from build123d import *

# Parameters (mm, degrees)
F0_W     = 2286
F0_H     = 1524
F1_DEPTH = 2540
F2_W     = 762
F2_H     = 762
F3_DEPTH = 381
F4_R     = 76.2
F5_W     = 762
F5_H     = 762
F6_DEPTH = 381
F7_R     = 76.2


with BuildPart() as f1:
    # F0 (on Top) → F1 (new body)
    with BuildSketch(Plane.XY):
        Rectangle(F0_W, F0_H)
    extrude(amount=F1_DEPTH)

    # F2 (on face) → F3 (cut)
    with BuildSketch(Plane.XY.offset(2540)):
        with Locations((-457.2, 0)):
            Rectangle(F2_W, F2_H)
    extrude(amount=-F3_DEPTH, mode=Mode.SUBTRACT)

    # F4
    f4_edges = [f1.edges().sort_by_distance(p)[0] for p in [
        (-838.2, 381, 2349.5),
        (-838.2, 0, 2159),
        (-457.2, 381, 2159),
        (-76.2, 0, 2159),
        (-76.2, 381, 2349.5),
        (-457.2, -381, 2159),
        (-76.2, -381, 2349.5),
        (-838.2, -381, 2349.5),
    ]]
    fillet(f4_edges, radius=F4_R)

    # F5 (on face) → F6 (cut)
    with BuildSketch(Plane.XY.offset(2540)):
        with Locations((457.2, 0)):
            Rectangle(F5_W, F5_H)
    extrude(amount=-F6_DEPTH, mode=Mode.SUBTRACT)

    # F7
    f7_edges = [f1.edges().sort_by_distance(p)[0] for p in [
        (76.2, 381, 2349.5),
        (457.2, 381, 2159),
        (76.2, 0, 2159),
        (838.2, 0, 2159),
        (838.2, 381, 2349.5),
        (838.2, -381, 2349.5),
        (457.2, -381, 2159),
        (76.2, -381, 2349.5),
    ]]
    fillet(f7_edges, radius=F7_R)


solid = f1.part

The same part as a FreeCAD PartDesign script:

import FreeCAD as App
import Part
import Sketcher
from FreeCAD import Vector
Q = App.Units.Quantity


def edges_at(feature, points):
    """Names of the edges that pass closest to the given points."""
    edges = feature.Shape.Edges
    near = lambda p: min(range(len(edges)), key=lambda i: edges[i].distToShape(Part.Vertex(*p))[0])
    return sorted({f"Edge{near(p) + 1}" for p in points})


def add_polygon(sketch, points):
    """Adds a closed chain of lines whose ends are joined by coincident constraints."""
    first, n = sketch.GeometryCount, len(points)
    for a, b in zip(points, points[1:] + points[:1]):
        sketch.addGeometry(Part.LineSegment(App.Vector(*a, 0), App.Vector(*b, 0)), False)
    for i in range(n):
        sketch.addConstraint(Sketcher.Constraint("Coincident", first + i, 2, first + (i + 1) % n, 1))

doc = App.newDocument("Part")
params = doc.addObject("Spreadsheet::Sheet", "Params")
for row, (alias, value) in enumerate([
    ("sketch1_width", "90 in"),
    ("sketch1_height", "60 in"),
    ("pad1_length", "100 in"),
    ("sketch2_width", "30 in"),
    ("pocket1_length", "15 in"),
    ("fillet_radius", "3 in"),
    ("sketch3_width", "30 in"),
    ("pocket2_length", "15 in"),
    ("fillet2_radius", "3 in"),
], start=1):
    params.set(f"A{row}", alias)
    params.set(f"B{row}", "=" + value)
    params.setAlias(f"B{row}", alias)

body = doc.addObject("PartDesign::Body", "Body")

sketch1 = body.newObject("Sketcher::SketchObject", "Sketch")
sketch1.AttachmentSupport = (doc.getObject("XY_Plane"), [""])
sketch1.MapMode = "FlatFace"
add_polygon(sketch1, [(-1143, 762), (-1143, -762), (1143, -762), (1143, 762)])
sketch1.addConstraint(Sketcher.Constraint("Vertical", 0))
sketch1.addConstraint(Sketcher.Constraint("Horizontal", 1))
sketch1.addConstraint(Sketcher.Constraint("Vertical", 2))
sketch1.addConstraint(Sketcher.Constraint("Horizontal", 3))
sketch1.addConstraint(Sketcher.Constraint("Symmetric", 0, 2, 2, 2, -1, 1))
sketch1.addConstraint(Sketcher.Constraint("DistanceX", 1, 1, 1, 2, Q("90 in")))
sketch1.addConstraint(Sketcher.Constraint("DistanceY", 0, 2, 0, 1, Q("60 in")))
sketch1.setExpression("Constraints[9]", "Params.sketch1_width")
sketch1.setExpression("Constraints[10]", "Params.sketch1_height")
pad1 = body.newObject("PartDesign::Pad", "Pad")
pad1.Profile = sketch1
pad1.setExpression("Length", "Params.pad1_length")

sketch2 = body.newObject("Sketcher::SketchObject", "Sketch001")
sketch2.AttachmentSupport = (doc.getObject("XY_Plane"), [""])
sketch2.MapMode = "FlatFace"
sketch2.AttachmentOffset = App.Placement(Vector(0, 0, 100 * 25.4), App.Rotation())
add_polygon(sketch2, [(-838.2, 381), (-838.2, -381), (-76.2, -381), (-76.2, 381)])
sketch2.addConstraint(Sketcher.Constraint("Vertical", 0))
sketch2.addConstraint(Sketcher.Constraint("Horizontal", 1))
sketch2.addConstraint(Sketcher.Constraint("Vertical", 2))
sketch2.addConstraint(Sketcher.Constraint("Horizontal", 3))
sketch2.addConstraint(Sketcher.Constraint("Equal", 3, 0))
sketch2.addConstraint(Sketcher.Constraint("DistanceX", 1, 1, 1, 2, Q("30 in")))
sketch2.addConstraint(Sketcher.Constraint("DistanceX", 0, 2, -1, 1, Q("33 in")))
sketch2.addConstraint(Sketcher.Constraint("DistanceY", 0, 2, -1, 1, Q("15 in")))
sketch2.setExpression("Constraints[9]", "Params.sketch2_width")
pocket1 = body.newObject("PartDesign::Pocket", "Pocket")
pocket1.Profile = sketch2
pocket1.setExpression("Length", "Params.pocket1_length")
doc.recompute()

fillet = body.newObject("PartDesign::Fillet", "Fillet")
fillet.Base = (pocket1, edges_at(pocket1, [
    (-838.2, 381, 2349.5),
    (-838.2, 0, 2159),
    (-457.2, 381, 2159),
    (-76.2, 0, 2159),
    (-76.2, 381, 2349.5),
    (-457.2, -381, 2159),
    (-76.2, -381, 2349.5),
    (-838.2, -381, 2349.5),
]))
fillet.setExpression("Radius", "Params.fillet_radius")

sketch3 = body.newObject("Sketcher::SketchObject", "Sketch002")
sketch3.AttachmentSupport = (doc.getObject("XY_Plane"), [""])
sketch3.MapMode = "FlatFace"
sketch3.AttachmentOffset = App.Placement(Vector(0, 0, 100 * 25.4), App.Rotation())
add_polygon(sketch3, [(76.2, 381), (76.2, -381), (838.2, -381), (838.2, 381)])
sketch3.addConstraint(Sketcher.Constraint("Vertical", 0))
sketch3.addConstraint(Sketcher.Constraint("Horizontal", 1))
sketch3.addConstraint(Sketcher.Constraint("Vertical", 2))
sketch3.addConstraint(Sketcher.Constraint("Horizontal", 3))
sketch3.addConstraint(Sketcher.Constraint("Equal", 3, 0))
sketch3.addConstraint(Sketcher.Constraint("DistanceX", 1, 1, 1, 2, Q("30 in")))
sketch3.addConstraint(Sketcher.Constraint("DistanceX", -1, 1, 0, 2, Q("3 in")))
sketch3.addConstraint(Sketcher.Constraint("DistanceY", 0, 2, -1, 1, Q("15 in")))
sketch3.setExpression("Constraints[9]", "Params.sketch3_width")
pocket2 = body.newObject("PartDesign::Pocket", "Pocket001")
pocket2.Profile = sketch3
pocket2.setExpression("Length", "Params.pocket2_length")
doc.recompute()

fillet2 = body.newObject("PartDesign::Fillet", "Fillet001")
fillet2.Base = (pocket2, edges_at(pocket2, [
    (76.2, 381, 2349.5),
    (457.2, 381, 2159),
    (76.2, 0, 2159),
    (838.2, 0, 2159),
    (838.2, 381, 2349.5),
    (838.2, -381, 2349.5),
    (457.2, -381, 2159),
    (76.2, -381, 2349.5),
]))
fillet2.setExpression("Radius", "Params.fillet2_radius")

doc.recompute()
